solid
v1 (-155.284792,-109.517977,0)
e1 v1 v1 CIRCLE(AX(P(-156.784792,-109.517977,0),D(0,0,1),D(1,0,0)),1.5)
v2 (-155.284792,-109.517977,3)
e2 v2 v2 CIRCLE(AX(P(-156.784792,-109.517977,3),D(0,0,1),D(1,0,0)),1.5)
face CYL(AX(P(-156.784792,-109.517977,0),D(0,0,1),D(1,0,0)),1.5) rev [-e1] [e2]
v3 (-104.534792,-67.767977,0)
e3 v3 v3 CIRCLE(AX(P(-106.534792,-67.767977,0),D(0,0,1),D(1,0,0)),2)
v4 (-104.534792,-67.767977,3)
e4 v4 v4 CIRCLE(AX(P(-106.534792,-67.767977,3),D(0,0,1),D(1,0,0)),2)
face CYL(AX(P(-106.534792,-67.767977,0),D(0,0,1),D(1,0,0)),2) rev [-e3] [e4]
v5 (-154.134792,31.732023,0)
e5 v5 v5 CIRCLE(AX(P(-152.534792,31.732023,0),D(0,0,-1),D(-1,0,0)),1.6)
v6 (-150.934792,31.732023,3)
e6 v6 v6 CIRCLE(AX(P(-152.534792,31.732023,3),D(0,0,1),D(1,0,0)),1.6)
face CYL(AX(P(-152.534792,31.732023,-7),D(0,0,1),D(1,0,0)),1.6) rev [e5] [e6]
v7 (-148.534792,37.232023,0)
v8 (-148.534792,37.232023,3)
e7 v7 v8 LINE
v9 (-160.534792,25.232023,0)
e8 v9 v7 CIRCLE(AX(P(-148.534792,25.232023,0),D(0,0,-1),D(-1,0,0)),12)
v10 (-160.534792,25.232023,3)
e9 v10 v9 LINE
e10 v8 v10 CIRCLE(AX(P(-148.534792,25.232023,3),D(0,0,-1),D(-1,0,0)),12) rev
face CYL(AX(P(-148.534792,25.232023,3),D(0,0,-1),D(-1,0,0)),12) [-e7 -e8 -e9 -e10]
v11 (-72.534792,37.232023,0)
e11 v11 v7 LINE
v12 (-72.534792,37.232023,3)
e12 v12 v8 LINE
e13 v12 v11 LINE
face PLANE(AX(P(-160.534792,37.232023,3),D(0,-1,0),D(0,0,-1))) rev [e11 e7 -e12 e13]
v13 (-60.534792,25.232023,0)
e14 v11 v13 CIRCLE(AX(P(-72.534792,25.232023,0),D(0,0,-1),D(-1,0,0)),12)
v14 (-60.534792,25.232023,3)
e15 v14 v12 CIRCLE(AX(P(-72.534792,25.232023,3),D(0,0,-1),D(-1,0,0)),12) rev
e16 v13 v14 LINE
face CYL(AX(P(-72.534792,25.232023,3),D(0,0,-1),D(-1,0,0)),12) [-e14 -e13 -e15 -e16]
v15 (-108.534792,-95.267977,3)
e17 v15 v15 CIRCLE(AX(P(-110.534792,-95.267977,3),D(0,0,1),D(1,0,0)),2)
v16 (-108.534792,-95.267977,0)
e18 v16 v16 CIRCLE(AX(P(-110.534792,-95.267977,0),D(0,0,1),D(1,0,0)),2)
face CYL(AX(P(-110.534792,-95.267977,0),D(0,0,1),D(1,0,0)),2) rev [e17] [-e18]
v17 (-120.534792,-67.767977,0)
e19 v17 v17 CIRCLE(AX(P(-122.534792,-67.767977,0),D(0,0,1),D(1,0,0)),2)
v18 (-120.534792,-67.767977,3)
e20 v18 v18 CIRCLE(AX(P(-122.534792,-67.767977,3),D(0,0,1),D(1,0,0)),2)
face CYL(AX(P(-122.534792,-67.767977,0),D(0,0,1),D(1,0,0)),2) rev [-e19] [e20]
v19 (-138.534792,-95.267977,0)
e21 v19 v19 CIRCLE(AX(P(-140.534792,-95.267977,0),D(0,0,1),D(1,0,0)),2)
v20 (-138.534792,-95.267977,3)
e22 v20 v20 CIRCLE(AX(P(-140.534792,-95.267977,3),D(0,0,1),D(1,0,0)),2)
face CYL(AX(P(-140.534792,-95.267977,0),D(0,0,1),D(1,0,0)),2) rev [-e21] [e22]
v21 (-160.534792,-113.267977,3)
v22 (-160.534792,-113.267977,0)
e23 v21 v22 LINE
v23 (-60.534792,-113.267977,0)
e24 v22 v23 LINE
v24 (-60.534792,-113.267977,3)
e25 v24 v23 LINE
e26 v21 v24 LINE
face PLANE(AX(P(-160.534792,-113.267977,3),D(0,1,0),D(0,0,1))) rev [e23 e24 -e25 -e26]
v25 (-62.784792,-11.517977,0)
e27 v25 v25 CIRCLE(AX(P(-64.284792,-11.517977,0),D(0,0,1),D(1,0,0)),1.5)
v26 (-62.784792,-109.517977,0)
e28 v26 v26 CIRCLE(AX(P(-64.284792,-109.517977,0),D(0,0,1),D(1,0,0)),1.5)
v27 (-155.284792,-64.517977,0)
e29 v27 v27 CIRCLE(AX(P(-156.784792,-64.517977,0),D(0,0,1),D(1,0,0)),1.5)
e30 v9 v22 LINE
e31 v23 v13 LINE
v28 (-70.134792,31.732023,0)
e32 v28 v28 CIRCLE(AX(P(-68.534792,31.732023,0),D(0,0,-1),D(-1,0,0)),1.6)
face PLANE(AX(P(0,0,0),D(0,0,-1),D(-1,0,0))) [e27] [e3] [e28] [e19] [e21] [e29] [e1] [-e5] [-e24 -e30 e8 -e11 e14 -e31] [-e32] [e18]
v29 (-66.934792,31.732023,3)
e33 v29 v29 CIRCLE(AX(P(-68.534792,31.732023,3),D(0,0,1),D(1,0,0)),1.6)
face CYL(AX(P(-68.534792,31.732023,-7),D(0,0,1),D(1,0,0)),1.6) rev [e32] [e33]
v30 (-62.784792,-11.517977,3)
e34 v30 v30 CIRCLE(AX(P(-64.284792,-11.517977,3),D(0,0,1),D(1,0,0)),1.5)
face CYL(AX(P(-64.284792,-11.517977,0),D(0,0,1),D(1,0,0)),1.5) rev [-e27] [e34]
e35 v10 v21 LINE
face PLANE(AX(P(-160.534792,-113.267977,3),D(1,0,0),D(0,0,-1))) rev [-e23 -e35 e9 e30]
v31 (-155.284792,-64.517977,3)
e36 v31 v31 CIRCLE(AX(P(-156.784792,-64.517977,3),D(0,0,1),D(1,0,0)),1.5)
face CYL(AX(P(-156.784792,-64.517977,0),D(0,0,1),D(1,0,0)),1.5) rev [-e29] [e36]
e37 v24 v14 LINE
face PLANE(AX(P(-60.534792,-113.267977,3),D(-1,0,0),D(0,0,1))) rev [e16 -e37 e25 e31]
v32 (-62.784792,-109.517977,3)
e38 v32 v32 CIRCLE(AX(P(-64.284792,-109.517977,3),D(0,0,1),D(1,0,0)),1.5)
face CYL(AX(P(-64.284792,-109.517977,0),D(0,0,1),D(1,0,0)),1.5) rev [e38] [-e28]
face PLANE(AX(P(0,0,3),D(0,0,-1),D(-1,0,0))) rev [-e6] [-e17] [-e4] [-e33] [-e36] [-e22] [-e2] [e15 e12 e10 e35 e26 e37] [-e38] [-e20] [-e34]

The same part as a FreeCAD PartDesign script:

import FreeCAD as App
import Part
import Sketcher
from FreeCAD import Vector


def edges_at(feature, points):
    """Names of the edges that pass closest to the given points."""
    edges = feature.Shape.Edges
    near = lambda p: min(range(len(edges)), key=lambda i: edges[i].distToShape(Part.Vertex(*p))[0])
    return sorted({f"Edge{near(p) + 1}" for p in points})


def add_polygon(sketch, points):
    """Adds a closed chain of lines whose ends are joined by coincident constraints."""
    first, n = sketch.GeometryCount, len(points)
    for a, b in zip(points, points[1:] + points[:1]):
        sketch.addGeometry(Part.LineSegment(App.Vector(*a, 0), App.Vector(*b, 0)), False)
    for i in range(n):
        sketch.addConstraint(Sketcher.Constraint("Coincident", first + i, 2, first + (i + 1) % n, 1))

doc = App.newDocument("Part")
body = doc.addObject("PartDesign::Body", "Body")

# Sketch on XY plane
sketch1 = body.newObject("Sketcher::SketchObject", "Sketch")
sketch1.AttachmentSupport = (doc.getObject("XY_Plane"), [""])
sketch1.MapMode = "FlatFace"
add_polygon(sketch1, [(-161, 37), (-161, -113), (-61, -113), (-61, 37)])  # lines 0-3
sketch1.addConstraint([
    Sketcher.Constraint("Vertical", 0),
    Sketcher.Constraint("Horizontal", 1),
    Sketcher.Constraint("Vertical", 2),
    Sketcher.Constraint("Horizontal", 3),
    Sketcher.Constraint("DistanceX", 1, 1, 1, 2, 100.0),
    Sketcher.Constraint("DistanceY", 0, 2, 0, 1, 150.5),
    Sketcher.Constraint("DistanceX", 0, 2, -1, 1, 160.534792),
    Sketcher.Constraint("DistanceY", 0, 2, -1, 1, 113.267977),
])
pad1 = body.newObject("PartDesign::Pad", "Pad")
pad1.Profile = sketch1
pad1.Length = 3

# Sketch on XY plane
sketch2 = body.newObject("Sketcher::SketchObject", "Sketch001")
sketch2.AttachmentSupport = (doc.getObject("XY_Plane"), [""])
sketch2.MapMode = "FlatFace"
sketch2.AttachmentOffset = App.Placement(Vector(0, 0, 3), App.Rotation())
sketch2.addGeometry([
    Part.Circle(Vector(-156.8, -109.5, 0), Vector(0, 0, 1), 1.5),
    Part.Circle(Vector(-64.3, -109.5, 0), Vector(0, 0, 1), 1.5),
    Part.Circle(Vector(-64.3, -11.5, 0), Vector(0, 0, 1), 1.5),
    Part.Circle(Vector(-156.8, -64.5, 0), Vector(0, 0, 1), 1.5),
], False)
sketch2.addConstraint([
    Sketcher.Constraint("Equal", 0, 1),
    Sketcher.Constraint("Equal", 1, 2),
    Sketcher.Constraint("Equal", 2, 3),
    Sketcher.Constraint("Horizontal", 0, 3, 1, 3),
    Sketcher.Constraint("Vertical", 1, 3, 2, 3),
    Sketcher.Constraint("Vertical", 0, 3, 3, 3),
    Sketcher.Constraint("Diameter", 0, 3.0),
    Sketcher.Constraint("DistanceY", 1, 3, 2, 3, 98.0),
    Sketcher.Constraint("DistanceY", 0, 3, 3, 3, 45.0),
    Sketcher.Constraint("DistanceX", 0, 3, 1, 3, 92.5),
    Sketcher.Constraint("DistanceX", 0, 3, -1, 1, 156.784792),
    Sketcher.Constraint("DistanceY", 0, 3, -1, 1, 109.517977),
])
pocket1 = body.newObject("PartDesign::Pocket", "Pocket")
pocket1.Profile = sketch2
pocket1.Length = 3

# Sketch on XY plane
sketch3 = body.newObject("Sketcher::SketchObject", "Sketch002")
sketch3.AttachmentSupport = (doc.getObject("XY_Plane"), [""])
sketch3.MapMode = "FlatFace"
sketch3.AttachmentOffset = App.Placement(Vector(0, 0, 3), App.Rotation())
sketch3.addGeometry([
    Part.Circle(Vector(-140.5, -95.3, 0), Vector(0, 0, 1), 2),
    Part.Circle(Vector(-110.5, -95.3, 0), Vector(0, 0, 1), 2),
    Part.Circle(Vector(-106.5, -67.8, 0), Vector(0, 0, 1), 2),
    Part.Circle(Vector(-122.5, -67.8, 0), Vector(0, 0, 1), 2),
], False)
sketch3.addConstraint([
    Sketcher.Constraint("Equal", 0, 1),
    Sketcher.Constraint("Equal", 1, 2),
    Sketcher.Constraint("Equal", 2, 3),
    Sketcher.Constraint("Horizontal", 0, 3, 1, 3),
    Sketcher.Constraint("Horizontal", 2, 3, 3, 3),
    Sketcher.Constraint("Diameter", 0, 4.0),
    Sketcher.Constraint("DistanceX", 0, 3, 1, 3, 30.0),
    Sketcher.Constraint("DistanceX", 1, 3, 2, 3, 4.0),
    Sketcher.Constraint("DistanceX", 3, 3, 2, 3, 16.0),
    Sketcher.Constraint("DistanceY", 1, 3, 2, 3, 27.5),
    Sketcher.Constraint("DistanceX", 0, 3, -1, 1, 140.534792),
    Sketcher.Constraint("DistanceY", 0, 3, -1, 1, 95.267977),
])
pocket2 = body.newObject("PartDesign::Pocket", "Pocket001")
pocket2.Profile = sketch3
pocket2.Length = 3
doc.recompute()

fillet = body.newObject("PartDesign::Fillet", "Fillet")
fillet.Base = (pocket2, edges_at(pocket2, [(-160.535, 37.232, 1.5), (-60.535, 37.232, 1.5)]))
fillet.Radius = 12

# Sketch on XY plane
sketch4 = body.newObject("Sketcher::SketchObject", "Sketch003")
sketch4.AttachmentSupport = (doc.getObject("XY_Plane"), [""])
sketch4.MapMode = "FlatFace"
sketch4.AttachmentOffset = App.Placement(Vector(0, 0, 3), App.Rotation())
sketch4.addGeometry([
    Part.Circle(Vector(-152.5, 31.7, 0), Vector(0, 0, 1), 1.6),
    Part.Circle(Vector(-68.5, 31.7, 0), Vector(0, 0, 1), 1.6),
], False)
sketch4.addConstraint([
    Sketcher.Constraint("Equal", 0, 1),
    Sketcher.Constraint("Horizontal", 0, 3, 1, 3),
    Sketcher.Constraint("Diameter", 0, 3.2),
    Sketcher.Constraint("DistanceX", 0, 3, 1, 3, 84.0),
    Sketcher.Constraint("DistanceX", 0, 3, -1, 1, 152.534792),
    Sketcher.Constraint("DistanceY", -1, 1, 0, 3, 31.732023),
])
pocket3 = body.newObject("PartDesign::Pocket", "Pocket002")
pocket3.Profile = sketch4
pocket3.Length = 10

doc.recompute()
